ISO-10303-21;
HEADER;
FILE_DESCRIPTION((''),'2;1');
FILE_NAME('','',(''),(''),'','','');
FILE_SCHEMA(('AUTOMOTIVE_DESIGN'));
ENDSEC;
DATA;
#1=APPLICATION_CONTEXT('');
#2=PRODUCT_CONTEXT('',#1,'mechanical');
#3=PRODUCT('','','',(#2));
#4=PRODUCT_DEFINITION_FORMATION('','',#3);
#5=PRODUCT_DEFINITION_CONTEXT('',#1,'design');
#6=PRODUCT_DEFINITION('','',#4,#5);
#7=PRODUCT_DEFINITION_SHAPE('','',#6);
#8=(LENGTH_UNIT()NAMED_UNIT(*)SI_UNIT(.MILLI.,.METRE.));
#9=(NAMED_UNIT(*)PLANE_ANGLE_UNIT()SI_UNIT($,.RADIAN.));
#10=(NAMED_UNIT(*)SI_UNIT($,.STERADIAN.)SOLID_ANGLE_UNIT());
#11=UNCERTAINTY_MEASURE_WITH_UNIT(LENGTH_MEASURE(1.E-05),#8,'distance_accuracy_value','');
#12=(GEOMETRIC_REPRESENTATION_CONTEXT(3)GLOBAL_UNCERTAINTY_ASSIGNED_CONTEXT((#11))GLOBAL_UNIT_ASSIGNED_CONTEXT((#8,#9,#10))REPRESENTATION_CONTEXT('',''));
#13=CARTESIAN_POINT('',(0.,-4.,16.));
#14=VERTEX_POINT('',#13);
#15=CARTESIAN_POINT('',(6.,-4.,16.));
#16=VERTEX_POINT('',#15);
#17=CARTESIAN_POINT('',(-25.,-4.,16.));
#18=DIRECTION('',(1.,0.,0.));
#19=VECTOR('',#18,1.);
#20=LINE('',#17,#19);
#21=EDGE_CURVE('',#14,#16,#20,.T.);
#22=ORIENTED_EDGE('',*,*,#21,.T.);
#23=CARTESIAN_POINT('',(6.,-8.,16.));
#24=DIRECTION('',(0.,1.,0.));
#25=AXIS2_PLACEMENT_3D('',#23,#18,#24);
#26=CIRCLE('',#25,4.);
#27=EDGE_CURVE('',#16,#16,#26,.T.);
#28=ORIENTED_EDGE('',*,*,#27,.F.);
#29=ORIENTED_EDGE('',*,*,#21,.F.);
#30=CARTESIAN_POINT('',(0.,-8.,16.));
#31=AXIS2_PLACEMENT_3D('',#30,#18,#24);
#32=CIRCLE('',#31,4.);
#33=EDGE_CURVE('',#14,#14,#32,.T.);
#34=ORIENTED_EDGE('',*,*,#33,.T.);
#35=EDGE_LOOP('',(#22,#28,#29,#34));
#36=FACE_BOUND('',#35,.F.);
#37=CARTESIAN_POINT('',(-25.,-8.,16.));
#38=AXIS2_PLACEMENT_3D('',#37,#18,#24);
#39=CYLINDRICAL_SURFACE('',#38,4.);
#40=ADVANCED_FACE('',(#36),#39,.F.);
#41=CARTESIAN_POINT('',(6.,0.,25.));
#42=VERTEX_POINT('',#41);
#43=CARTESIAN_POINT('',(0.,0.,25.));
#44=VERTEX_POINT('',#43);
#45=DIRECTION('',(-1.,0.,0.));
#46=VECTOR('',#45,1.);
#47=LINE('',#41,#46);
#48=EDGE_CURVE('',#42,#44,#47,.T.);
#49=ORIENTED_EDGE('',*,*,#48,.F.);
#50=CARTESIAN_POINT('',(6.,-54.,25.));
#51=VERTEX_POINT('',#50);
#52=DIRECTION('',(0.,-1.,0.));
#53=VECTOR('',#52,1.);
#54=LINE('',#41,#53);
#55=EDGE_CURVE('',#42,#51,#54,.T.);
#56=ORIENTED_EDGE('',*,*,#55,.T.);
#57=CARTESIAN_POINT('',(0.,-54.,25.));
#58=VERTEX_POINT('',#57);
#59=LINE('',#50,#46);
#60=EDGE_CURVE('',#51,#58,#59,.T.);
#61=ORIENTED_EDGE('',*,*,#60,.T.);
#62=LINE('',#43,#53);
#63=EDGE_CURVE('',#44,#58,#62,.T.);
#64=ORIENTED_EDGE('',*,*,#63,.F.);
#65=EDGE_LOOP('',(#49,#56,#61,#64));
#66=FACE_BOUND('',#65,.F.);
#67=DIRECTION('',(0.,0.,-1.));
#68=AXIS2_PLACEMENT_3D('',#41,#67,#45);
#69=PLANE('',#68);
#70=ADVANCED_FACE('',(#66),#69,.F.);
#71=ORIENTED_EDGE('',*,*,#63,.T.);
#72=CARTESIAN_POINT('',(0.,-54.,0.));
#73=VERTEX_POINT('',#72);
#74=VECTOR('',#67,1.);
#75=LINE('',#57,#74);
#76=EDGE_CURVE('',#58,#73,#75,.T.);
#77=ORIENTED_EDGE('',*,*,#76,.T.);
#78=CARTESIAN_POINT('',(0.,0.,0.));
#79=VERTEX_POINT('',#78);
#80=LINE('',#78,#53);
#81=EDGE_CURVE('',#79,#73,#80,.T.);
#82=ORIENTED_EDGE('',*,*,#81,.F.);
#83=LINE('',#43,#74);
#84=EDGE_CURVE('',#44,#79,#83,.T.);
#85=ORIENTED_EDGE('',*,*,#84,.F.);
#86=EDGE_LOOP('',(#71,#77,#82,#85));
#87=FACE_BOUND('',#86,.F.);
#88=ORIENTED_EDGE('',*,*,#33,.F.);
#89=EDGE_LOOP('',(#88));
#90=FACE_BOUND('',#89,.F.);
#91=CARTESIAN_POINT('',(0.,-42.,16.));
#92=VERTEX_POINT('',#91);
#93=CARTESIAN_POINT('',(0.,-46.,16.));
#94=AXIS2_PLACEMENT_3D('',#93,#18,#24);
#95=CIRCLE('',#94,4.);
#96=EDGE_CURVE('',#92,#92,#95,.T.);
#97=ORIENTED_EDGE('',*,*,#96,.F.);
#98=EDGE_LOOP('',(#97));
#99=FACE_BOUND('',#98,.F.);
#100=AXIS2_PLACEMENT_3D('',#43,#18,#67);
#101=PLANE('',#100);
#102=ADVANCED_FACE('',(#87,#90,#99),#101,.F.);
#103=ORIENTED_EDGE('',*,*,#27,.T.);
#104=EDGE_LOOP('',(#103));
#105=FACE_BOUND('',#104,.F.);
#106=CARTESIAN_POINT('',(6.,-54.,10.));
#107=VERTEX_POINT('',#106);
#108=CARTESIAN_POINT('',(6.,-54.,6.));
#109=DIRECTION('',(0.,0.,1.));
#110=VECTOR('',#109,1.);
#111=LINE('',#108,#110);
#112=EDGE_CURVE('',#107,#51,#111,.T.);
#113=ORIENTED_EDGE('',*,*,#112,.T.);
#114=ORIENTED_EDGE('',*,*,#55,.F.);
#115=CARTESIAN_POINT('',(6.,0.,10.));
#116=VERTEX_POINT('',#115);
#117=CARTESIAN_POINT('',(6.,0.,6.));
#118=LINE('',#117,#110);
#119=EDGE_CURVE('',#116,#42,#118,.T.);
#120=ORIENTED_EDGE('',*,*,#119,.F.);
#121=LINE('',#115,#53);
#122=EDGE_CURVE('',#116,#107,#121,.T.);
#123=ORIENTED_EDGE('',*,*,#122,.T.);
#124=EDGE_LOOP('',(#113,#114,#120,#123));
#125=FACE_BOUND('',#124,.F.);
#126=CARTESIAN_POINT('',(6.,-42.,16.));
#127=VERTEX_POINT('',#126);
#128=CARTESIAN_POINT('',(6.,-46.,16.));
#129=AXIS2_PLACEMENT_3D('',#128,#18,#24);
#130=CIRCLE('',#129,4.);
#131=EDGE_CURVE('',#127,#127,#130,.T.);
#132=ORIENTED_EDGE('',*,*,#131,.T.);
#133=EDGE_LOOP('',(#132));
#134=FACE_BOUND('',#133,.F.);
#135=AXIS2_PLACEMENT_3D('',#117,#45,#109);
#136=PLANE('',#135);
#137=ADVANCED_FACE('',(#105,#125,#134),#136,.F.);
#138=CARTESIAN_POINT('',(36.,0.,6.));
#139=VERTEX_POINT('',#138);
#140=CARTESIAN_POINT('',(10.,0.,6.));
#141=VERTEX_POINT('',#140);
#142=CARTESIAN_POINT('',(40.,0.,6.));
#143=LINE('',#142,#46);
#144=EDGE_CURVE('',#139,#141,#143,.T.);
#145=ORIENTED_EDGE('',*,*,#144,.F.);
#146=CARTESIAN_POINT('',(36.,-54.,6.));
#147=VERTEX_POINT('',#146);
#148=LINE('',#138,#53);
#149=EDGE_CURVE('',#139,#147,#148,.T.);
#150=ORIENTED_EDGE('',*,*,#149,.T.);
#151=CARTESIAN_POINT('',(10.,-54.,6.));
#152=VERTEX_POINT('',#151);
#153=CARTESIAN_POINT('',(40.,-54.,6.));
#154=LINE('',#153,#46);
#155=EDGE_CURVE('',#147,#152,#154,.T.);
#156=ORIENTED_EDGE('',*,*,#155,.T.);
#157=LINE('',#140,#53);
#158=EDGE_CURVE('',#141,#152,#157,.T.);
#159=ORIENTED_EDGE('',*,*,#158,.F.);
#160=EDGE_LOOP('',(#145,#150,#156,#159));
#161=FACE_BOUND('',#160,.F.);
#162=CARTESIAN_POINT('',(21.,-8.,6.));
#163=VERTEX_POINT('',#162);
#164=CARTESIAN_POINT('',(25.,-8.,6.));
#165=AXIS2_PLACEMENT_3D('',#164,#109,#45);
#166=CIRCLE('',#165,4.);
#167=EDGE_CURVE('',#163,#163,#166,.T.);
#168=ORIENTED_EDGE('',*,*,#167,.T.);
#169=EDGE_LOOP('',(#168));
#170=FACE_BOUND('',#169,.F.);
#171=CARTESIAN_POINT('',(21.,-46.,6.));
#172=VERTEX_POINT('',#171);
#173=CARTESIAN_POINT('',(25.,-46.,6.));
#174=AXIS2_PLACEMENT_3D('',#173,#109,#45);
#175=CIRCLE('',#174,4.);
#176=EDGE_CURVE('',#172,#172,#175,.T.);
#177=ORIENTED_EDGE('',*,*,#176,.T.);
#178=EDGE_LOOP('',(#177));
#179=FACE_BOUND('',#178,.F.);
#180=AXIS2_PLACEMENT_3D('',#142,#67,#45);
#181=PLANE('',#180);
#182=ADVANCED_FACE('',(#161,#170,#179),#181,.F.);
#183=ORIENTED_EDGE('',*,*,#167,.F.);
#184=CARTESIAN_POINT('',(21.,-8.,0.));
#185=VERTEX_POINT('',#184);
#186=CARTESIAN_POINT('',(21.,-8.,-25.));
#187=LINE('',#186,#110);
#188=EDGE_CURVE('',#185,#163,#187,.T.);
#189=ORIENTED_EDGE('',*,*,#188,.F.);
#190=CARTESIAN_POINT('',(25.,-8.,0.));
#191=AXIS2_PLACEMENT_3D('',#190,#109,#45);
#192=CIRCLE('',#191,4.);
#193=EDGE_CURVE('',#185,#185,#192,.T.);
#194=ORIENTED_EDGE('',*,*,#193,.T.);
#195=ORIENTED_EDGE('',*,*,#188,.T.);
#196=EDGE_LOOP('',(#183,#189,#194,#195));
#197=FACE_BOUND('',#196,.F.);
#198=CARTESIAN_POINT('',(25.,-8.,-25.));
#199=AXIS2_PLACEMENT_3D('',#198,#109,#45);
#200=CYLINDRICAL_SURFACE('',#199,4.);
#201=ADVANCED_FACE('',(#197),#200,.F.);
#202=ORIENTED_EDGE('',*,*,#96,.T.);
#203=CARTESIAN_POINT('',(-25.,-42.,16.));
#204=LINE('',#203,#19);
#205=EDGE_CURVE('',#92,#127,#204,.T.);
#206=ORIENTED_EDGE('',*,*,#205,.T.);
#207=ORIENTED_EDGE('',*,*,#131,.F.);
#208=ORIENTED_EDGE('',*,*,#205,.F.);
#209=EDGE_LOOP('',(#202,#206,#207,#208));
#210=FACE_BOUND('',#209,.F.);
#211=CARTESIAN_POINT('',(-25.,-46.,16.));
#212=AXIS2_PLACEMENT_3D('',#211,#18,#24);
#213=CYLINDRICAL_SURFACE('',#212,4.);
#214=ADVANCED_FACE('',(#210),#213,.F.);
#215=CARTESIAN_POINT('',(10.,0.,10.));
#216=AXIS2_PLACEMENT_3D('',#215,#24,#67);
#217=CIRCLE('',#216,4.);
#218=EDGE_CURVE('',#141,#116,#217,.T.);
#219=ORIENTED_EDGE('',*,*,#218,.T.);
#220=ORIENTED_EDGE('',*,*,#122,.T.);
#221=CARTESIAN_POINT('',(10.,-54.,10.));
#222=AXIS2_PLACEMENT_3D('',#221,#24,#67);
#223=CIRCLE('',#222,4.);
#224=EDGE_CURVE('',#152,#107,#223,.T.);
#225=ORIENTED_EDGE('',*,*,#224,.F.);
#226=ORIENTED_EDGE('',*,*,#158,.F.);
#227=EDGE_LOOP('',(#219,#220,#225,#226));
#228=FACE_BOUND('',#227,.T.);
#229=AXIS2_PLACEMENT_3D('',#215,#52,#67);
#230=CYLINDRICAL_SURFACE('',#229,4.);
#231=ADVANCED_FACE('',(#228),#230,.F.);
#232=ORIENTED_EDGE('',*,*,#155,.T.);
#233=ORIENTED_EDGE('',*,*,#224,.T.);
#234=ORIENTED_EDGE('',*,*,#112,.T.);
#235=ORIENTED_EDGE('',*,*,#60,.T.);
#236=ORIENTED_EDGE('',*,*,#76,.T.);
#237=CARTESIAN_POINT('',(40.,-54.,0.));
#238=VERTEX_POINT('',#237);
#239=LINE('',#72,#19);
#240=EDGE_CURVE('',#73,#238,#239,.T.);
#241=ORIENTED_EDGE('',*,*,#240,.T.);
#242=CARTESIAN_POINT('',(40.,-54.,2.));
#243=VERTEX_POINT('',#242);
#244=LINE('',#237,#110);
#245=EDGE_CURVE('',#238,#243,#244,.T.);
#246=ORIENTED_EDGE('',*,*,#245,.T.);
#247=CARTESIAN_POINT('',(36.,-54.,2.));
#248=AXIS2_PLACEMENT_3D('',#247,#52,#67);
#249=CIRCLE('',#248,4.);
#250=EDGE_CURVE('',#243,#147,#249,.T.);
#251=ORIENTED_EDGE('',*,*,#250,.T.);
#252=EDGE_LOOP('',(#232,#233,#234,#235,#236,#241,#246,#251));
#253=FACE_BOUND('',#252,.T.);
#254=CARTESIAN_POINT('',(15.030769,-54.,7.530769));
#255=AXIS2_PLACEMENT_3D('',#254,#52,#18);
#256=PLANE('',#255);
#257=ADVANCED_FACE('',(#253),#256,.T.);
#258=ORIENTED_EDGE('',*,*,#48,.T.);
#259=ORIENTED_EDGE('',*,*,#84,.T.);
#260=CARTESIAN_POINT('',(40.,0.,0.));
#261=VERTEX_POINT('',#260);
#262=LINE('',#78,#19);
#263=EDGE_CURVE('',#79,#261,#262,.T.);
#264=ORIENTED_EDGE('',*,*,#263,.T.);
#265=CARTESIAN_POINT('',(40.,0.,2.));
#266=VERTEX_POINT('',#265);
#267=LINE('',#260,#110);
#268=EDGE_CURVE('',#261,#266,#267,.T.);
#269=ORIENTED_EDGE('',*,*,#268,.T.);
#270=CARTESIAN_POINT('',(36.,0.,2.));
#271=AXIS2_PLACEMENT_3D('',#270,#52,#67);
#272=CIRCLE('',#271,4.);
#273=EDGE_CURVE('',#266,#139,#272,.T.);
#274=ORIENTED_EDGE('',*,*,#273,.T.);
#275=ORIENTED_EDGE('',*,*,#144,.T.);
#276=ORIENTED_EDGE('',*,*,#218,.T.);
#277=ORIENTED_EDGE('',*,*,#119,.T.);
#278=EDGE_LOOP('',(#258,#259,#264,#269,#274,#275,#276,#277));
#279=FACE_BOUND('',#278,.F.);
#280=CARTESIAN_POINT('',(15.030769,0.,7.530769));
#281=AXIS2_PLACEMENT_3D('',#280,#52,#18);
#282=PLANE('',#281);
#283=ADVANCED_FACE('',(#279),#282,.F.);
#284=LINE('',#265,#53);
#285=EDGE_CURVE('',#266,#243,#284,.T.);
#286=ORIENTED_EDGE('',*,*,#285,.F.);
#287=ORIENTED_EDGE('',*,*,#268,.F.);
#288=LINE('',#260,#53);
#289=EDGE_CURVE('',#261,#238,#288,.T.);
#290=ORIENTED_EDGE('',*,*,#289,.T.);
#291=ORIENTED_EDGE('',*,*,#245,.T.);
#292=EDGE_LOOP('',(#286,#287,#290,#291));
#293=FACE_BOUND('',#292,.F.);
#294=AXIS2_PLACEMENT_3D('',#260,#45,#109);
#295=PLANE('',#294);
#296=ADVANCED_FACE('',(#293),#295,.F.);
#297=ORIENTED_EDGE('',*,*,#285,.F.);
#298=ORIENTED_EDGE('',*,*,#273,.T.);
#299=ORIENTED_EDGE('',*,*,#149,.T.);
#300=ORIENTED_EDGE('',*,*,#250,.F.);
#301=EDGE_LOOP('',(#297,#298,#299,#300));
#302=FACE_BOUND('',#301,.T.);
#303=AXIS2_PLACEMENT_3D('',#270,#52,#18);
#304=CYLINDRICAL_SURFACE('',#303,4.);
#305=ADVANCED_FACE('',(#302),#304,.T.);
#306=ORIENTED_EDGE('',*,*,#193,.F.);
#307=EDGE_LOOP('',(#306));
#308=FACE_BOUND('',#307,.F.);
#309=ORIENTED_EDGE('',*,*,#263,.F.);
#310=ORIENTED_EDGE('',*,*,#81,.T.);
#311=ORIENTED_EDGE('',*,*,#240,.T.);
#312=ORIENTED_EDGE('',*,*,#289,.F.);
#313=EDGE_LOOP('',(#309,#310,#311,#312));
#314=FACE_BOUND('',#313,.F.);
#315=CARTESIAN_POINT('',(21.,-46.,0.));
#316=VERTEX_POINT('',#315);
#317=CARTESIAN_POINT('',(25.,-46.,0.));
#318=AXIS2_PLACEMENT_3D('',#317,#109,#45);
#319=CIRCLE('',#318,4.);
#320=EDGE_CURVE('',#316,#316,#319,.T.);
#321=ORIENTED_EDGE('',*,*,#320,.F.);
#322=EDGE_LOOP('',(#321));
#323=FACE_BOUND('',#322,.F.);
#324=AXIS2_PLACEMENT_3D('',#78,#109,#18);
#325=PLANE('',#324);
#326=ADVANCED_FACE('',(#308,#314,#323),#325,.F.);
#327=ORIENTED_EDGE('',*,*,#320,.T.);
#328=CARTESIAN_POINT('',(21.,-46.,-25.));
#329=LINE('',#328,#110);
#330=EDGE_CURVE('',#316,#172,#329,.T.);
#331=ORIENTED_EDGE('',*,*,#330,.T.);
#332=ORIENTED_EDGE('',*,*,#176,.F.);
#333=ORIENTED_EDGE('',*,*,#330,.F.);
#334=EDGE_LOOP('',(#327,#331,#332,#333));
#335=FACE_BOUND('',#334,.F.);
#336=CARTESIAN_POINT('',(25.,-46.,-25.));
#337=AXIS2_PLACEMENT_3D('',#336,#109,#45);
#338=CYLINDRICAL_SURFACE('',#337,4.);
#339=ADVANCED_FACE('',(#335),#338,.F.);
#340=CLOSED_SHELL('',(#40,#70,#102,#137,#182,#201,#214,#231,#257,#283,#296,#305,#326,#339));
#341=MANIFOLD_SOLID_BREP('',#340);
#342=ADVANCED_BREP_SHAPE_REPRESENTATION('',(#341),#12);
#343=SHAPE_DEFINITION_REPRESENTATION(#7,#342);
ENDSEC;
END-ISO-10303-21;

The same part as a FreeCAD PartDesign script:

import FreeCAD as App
import Part
import Sketcher


def edges_at(feature, points):
    """Names of the edges that pass closest to the given points."""
    edges = feature.Shape.Edges
    near = lambda p: min(range(len(edges)), key=lambda i: edges[i].distToShape(Part.Vertex(*p))[0])
    return sorted({f"Edge{near(p) + 1}" for p in points})


def add_polygon(sketch, points):
    """Adds a closed chain of lines whose ends are joined by coincident constraints."""
    first, n = sketch.GeometryCount, len(points)
    for a, b in zip(points, points[1:] + points[:1]):
        sketch.addGeometry(Part.LineSegment(App.Vector(*a, 0), App.Vector(*b, 0)), False)
    for i in range(n):
        sketch.addConstraint(Sketcher.Constraint("Coincident", first + i, 2, first + (i + 1) % n, 1))

doc = App.newDocument("Part")
params = doc.addObject("Spreadsheet::Sheet", "Params")
for row, (alias, value) in enumerate([
    ("sketch1_width", "40 mm"),
    ("sketch1_width2", "34 mm"),
    ("sketch1_height", "25 mm"),
    ("pad1_length", "54 mm"),
    ("fillet_radius", "4 mm"),
    ("sketch2_diameter", "8 mm"),
    ("hole_diameter", "8 mm"),
    ("hole_depth", "25 mm"),
    ("sketch3_diameter", "8 mm"),
    ("hole2_diameter", "8 mm"),
    ("hole2_depth", "25 mm"),
], start=1):
    params.set(f"A{row}", alias)
    params.set(f"B{row}", "=" + value)
    params.setAlias(f"B{row}", alias)

body = doc.addObject("PartDesign::Body", "Body")

sketch1 = doc.addObject("Sketcher::SketchObject", "Sketch")
body.addObject(sketch1)
sketch1.AttachmentSupport = (doc.XZ_Plane, [""])
sketch1.MapMode = "FlatFace"
add_polygon(sketch1, [(0, 25), (0, 0), (40, 0), (40, 6), (6, 6), (6, 25)])
sketch1.addConstraint([
    Sketcher.Constraint("Vertical", 0),
    Sketcher.Constraint("Horizontal", 1),
    Sketcher.Constraint("Vertical", 2),
    Sketcher.Constraint("Horizontal", 3),
    Sketcher.Constraint("Vertical", 4),
    Sketcher.Constraint("Horizontal", 5),
    Sketcher.Constraint("Coincident", 0, 2, -1, 1),
    Sketcher.Constraint("Equal", 5, 2),
    Sketcher.Constraint("DistanceX", 1, 1, 1, 2, 40.0),
    Sketcher.Constraint("DistanceX", 3, 2, 3, 1, 34.0),
    Sketcher.Constraint("DistanceY", 0, 2, 0, 1, 25.0),
])
sketch1.setExpression("Constraints[14]", "Params.sketch1_width")
sketch1.setExpression("Constraints[15]", "Params.sketch1_width2")
sketch1.setExpression("Constraints[16]", "Params.sketch1_height")
pad1 = doc.addObject("PartDesign::Pad", "Pad")
body.addObject(pad1)
pad1.Profile = sketch1
pad1.setExpression("Length", "Params.pad1_length")
doc.recompute()

fillet = doc.addObject("PartDesign::Fillet", "Fillet")
body.addObject(fillet)
fillet.Base = (pad1, edges_at(pad1, [(40, -27, 6), (6, -27, 6)]))
fillet.setExpression("Radius", "Params.fillet_radius")

sketch2 = doc.addObject("Sketcher::SketchObject", "Sketch001")
body.addObject(sketch2)
sketch2.AttachmentSupport = (doc.YZ_Plane, [""])
sketch2.MapMode = "FlatFace"
sketch2.addGeometry([
    Part.Circle(App.Vector(-8, 16, 0), App.Vector(0, 0, 1), 4),
    Part.Circle(App.Vector(-46, 16, 0), App.Vector(0, 0, 1), 4),
], False)
sketch2.addConstraint([
    Sketcher.Constraint("Equal", 0, 1),
    Sketcher.Constraint("Horizontal", 0, 3, 1, 3),
    Sketcher.Constraint("Diameter", 0, 8.0),
    Sketcher.Constraint("DistanceX", 0, 3, -1, 1, 8.0),
    Sketcher.Constraint("DistanceY", -1, 1, 0, 3, 16.0),
    Sketcher.Constraint("DistanceX", 1, 3, -1, 1, 46.0),
])
sketch2.setExpression("Constraints[2]", "Params.sketch2_diameter")
doc.recompute()
hole = doc.addObject("PartDesign::Hole", "Hole")
body.addObject(hole)
hole.Profile = sketch2
hole.ThreadType = "None"
hole.setExpression("Diameter", "Params.hole_diameter")
hole.DepthType = "Dimension"
hole.setExpression("Depth", "Params.hole_depth")
hole.DrillPoint = "Flat"
hole.Reversed = True

sketch3 = doc.addObject("Sketcher::SketchObject", "Sketch002")
body.addObject(sketch3)
sketch3.AttachmentSupport = (doc.XY_Plane, [""])
sketch3.MapMode = "FlatFace"
sketch3.addGeometry([
    Part.Circle(App.Vector(25, -8, 0), App.Vector(0, 0, 1), 4),
    Part.Circle(App.Vector(25, -46, 0), App.Vector(0, 0, 1), 4),
    Part.Circle(App.Vector(25, -46, 0), App.Vector(0, 0, 1), 4),
], False)
sketch3.addConstraint([
    Sketcher.Constraint("Coincident", 2, 3, 1, 3),
    Sketcher.Constraint("Equal", 0, 1),
    Sketcher.Constraint("Equal", 1, 2),
    Sketcher.Constraint("Vertical", 0, 3, 1, 3),
    Sketcher.Constraint("Diameter", 0, 8.0),
    Sketcher.Constraint("DistanceX", -1, 1, 0, 3, 25.0),
    Sketcher.Constraint("DistanceY", 0, 3, -1, 1, 8.0),
    Sketcher.Constraint("DistanceY", 1, 3, -1, 1, 46.0),
])
sketch3.setExpression("Constraints[4]", "Params.sketch3_diameter")
doc.recompute()
hole2 = doc.addObject("PartDesign::Hole", "Hole001")
body.addObject(hole2)
hole2.Profile = sketch3
hole2.ThreadType = "None"
hole2.setExpression("Diameter", "Params.hole2_diameter")
hole2.DepthType = "Dimension"
hole2.setExpression("Depth", "Params.hole2_depth")
hole2.DrillPoint = "Flat"
hole2.Reversed = True

doc.recompute()
